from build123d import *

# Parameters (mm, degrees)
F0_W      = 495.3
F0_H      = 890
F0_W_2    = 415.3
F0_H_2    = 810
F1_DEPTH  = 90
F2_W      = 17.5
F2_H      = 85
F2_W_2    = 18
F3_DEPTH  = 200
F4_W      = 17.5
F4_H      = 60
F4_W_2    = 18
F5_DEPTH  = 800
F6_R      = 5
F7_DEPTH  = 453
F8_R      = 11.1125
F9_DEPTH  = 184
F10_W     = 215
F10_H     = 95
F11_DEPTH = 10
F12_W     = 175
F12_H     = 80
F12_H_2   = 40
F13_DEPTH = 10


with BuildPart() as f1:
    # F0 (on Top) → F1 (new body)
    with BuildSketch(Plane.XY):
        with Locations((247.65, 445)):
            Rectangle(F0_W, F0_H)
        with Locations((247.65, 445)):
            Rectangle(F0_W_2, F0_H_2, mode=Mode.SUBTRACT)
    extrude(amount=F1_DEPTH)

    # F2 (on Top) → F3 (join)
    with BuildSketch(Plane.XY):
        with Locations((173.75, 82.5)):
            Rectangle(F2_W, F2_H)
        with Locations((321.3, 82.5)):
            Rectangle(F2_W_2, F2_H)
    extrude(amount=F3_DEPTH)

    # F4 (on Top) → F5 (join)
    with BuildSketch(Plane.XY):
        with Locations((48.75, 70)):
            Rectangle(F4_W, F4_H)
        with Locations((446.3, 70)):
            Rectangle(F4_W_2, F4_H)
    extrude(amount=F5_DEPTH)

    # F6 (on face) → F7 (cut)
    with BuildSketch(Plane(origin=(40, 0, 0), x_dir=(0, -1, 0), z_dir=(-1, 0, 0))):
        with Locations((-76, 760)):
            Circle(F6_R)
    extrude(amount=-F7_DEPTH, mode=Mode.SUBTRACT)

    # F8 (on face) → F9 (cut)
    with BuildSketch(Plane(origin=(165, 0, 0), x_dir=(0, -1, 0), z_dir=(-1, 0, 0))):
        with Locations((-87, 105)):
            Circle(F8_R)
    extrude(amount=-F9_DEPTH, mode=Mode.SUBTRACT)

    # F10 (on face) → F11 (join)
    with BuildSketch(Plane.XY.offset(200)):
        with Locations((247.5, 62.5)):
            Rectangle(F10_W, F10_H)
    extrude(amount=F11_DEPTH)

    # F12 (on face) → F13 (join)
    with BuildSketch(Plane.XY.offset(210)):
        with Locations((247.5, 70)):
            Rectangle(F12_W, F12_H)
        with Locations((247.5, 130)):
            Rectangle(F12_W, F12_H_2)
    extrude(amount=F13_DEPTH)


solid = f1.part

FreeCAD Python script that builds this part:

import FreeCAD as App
import Part
import Sketcher
from FreeCAD import Vector

doc = App.newDocument("Part")
params = doc.addObject("Spreadsheet::Sheet", "Params")
for row, (alias, value) in enumerate([
    ("sketch1_height", "890 mm"),
    ("sketch1_height2", "810 mm"),
    ("sketch1_width", "495.3 mm"),
    ("sketch1_width2", "415.3 mm"),
    ("pad1_length", "90 mm"),
    ("sketch2_width", "18 mm"),
    ("sketch2_height", "85 mm"),
    ("sketch2_width2", "17.5 mm"),
    ("pad2_length", "200 mm"),
    ("sketch3_width", "18 mm"),
    ("sketch3_height", "60 mm"),
    ("sketch3_width2", "17.5 mm"),
    ("pad3_length", "800 mm"),
    ("sketch4_diameter", "10 mm"),
    ("pocket1_length", "453 mm"),
    ("pocket2_length", "184 mm"),
    ("sketch6_width", "215 mm"),
    ("sketch6_height", "95 mm"),
    ("pad4_length", "10 mm"),
    ("sketch7_width", "175 mm"),
    ("sketch7_height", "120 mm"),
    ("pad5_length", "10 mm"),
], start=1):
    params.set(f"A{row}", alias)
    params.set(f"B{row}", "=" + value)
    params.setAlias(f"B{row}", alias)

body = doc.addObject("PartDesign::Body", "Body")

sketch1 = doc.addObject("Sketcher::SketchObject", "Sketch")
body.addObject(sketch1)
sketch1.AttachmentSupport = (doc.XY_Plane, [""])
sketch1.MapMode = "FlatFace"
sketch1.addGeometry(Part.LineSegment(Vector(0, 890, 0), Vector(0, 0, 0)), False)
sketch1.addGeometry(Part.LineSegment(Vector(0, 0, 0), Vector(495, 0, 0)), False)
sketch1.addGeometry(Part.LineSegment(Vector(495, 0, 0), Vector(495, 890, 0)), False)
sketch1.addGeometry(Part.LineSegment(Vector(495, 890, 0), Vector(0, 890, 0)), False)
sketch1.addGeometry(Part.LineSegment(Vector(455, 40, 0), Vector(40, 40, 0)), False)
sketch1.addGeometry(Part.LineSegment(Vector(40, 40, 0), Vector(40, 850, 0)), False)
sketch1.addGeometry(Part.LineSegment(Vector(40, 850, 0), Vector(455, 850, 0)), False)
sketch1.addGeometry(Part.LineSegment(Vector(455, 850, 0), Vector(455, 40, 0)), False)
sketch1.addConstraint(Sketcher.Constraint("Coincident", 0, 2, 1, 1))
sketch1.addConstraint(Sketcher.Constraint("Coincident", 1, 2, 2, 1))
sketch1.addConstraint(Sketcher.Constraint("Coincident", 2, 2, 3, 1))
sketch1.addConstraint(Sketcher.Constraint("Coincident", 3, 2, 0, 1))
sketch1.addConstraint(Sketcher.Constraint("Coincident", 4, 2, 5, 1))
sketch1.addConstraint(Sketcher.Constraint("Coincident", 5, 2, 6, 1))
sketch1.addConstraint(Sketcher.Constraint("Coincident", 6, 2, 7, 1))
sketch1.addConstraint(Sketcher.Constraint("Coincident", 7, 2, 4, 1))
sketch1.addConstraint(Sketcher.Constraint("Vertical", 0))
sketch1.addConstraint(Sketcher.Constraint("Horizontal", 1))
sketch1.addConstraint(Sketcher.Constraint("Vertical", 2))
sketch1.addConstraint(Sketcher.Constraint("Horizontal", 3))
sketch1.addConstraint(Sketcher.Constraint("Horizontal", 4))
sketch1.addConstraint(Sketcher.Constraint("Vertical", 5))
sketch1.addConstraint(Sketcher.Constraint("Horizontal", 6))
sketch1.addConstraint(Sketcher.Constraint("Vertical", 7))
sketch1.addConstraint(Sketcher.Constraint("Coincident", 0, 2, -1, 1))
sketch1.addConstraint(Sketcher.Constraint("DistanceY", 0, 2, 0, 1, 890.0))
sketch1.addConstraint(Sketcher.Constraint("DistanceY", 5, 1, 5, 2, 810.0))
sketch1.addConstraint(Sketcher.Constraint("DistanceX", 1, 1, 1, 2, 495.3))
sketch1.addConstraint(Sketcher.Constraint("DistanceX", 4, 2, 4, 1, 415.3))
sketch1.addConstraint(Sketcher.Constraint("DistanceX", -1, 1, 4, 2, 40.0))
sketch1.addConstraint(Sketcher.Constraint("DistanceY", -1, 1, 4, 2, 40.0))
sketch1.setExpression("Constraints[17]", "Params.sketch1_height")
sketch1.setExpression("Constraints[18]", "Params.sketch1_height2")
sketch1.setExpression("Constraints[19]", "Params.sketch1_width")
sketch1.setExpression("Constraints[20]", "Params.sketch1_width2")
pad1 = doc.addObject("PartDesign::Pad", "Pad")
body.addObject(pad1)
pad1.Profile = sketch1
pad1.setExpression("Length", "Params.pad1_length")

sketch2 = doc.addObject("Sketcher::SketchObject", "Sketch001")
body.addObject(sketch2)
sketch2.AttachmentSupport = (doc.XY_Plane, [""])
sketch2.MapMode = "FlatFace"
sketch2.addGeometry(Part.LineSegment(Vector(165, 125, 0), Vector(165, 40, 0)), False)
sketch2.addGeometry(Part.LineSegment(Vector(165, 40, 0), Vector(182, 40, 0)), False)
sketch2.addGeometry(Part.LineSegment(Vector(182, 40, 0), Vector(182, 125, 0)), False)
sketch2.addGeometry(Part.LineSegment(Vector(182, 125, 0), Vector(165, 125, 0)), False)
sketch2.addGeometry(Part.LineSegment(Vector(312, 125, 0), Vector(312, 40, 0)), False)
sketch2.addGeometry(Part.LineSegment(Vector(312, 40, 0), Vector(330, 40, 0)), False)
sketch2.addGeometry(Part.LineSegment(Vector(330, 40, 0), Vector(330, 125, 0)), False)
sketch2.addGeometry(Part.LineSegment(Vector(330, 125, 0), Vector(312, 125, 0)), False)
sketch2.addConstraint(Sketcher.Constraint("Coincident", 0, 2, 1, 1))
sketch2.addConstraint(Sketcher.Constraint("Coincident", 1, 2, 2, 1))
sketch2.addConstraint(Sketcher.Constraint("Coincident", 2, 2, 3, 1))
sketch2.addConstraint(Sketcher.Constraint("Coincident", 3, 2, 0, 1))
sketch2.addConstraint(Sketcher.Constraint("Coincident", 4, 2, 5, 1))
sketch2.addConstraint(Sketcher.Constraint("Coincident", 5, 2, 6, 1))
sketch2.addConstraint(Sketcher.Constraint("Coincident", 6, 2, 7, 1))
sketch2.addConstraint(Sketcher.Constraint("Coincident", 7, 2, 4, 1))
sketch2.addConstraint(Sketcher.Constraint("Vertical", 0))
sketch2.addConstraint(Sketcher.Constraint("Horizontal", 1))
sketch2.addConstraint(Sketcher.Constraint("Vertical", 2))
sketch2.addConstraint(Sketcher.Constraint("Horizontal", 3))
sketch2.addConstraint(Sketcher.Constraint("Vertical", 4))
sketch2.addConstraint(Sketcher.Constraint("Horizontal", 5))
sketch2.addConstraint(Sketcher.Constraint("Vertical", 6))
sketch2.addConstraint(Sketcher.Constraint("Horizontal", 7))
sketch2.addConstraint(Sketcher.Constraint("Horizontal", 1, 2, 4, 2))
sketch2.addConstraint(Sketcher.Constraint("Horizontal", 3, 2, 6, 2))
sketch2.addConstraint(Sketcher.Constraint("DistanceX", 5, 1, 5, 2, 18.0))
sketch2.addConstraint(Sketcher.Constraint("DistanceY", 0, 2, 0, 1, 85.0))
sketch2.addConstraint(Sketcher.Constraint("DistanceX", 1, 1, 1, 2, 17.5))
sketch2.addConstraint(Sketcher.Constraint("DistanceX", -1, 1, 0, 2, 165.0))
sketch2.addConstraint(Sketcher.Constraint("DistanceY", -1, 1, 0, 2, 40.0))
sketch2.addConstraint(Sketcher.Constraint("DistanceX", -1, 1, 4, 2, 312.3))
sketch2.setExpression("Constraints[18]", "Params.sketch2_width")
sketch2.setExpression("Constraints[19]", "Params.sketch2_height")
sketch2.setExpression("Constraints[20]", "Params.sketch2_width2")
pad2 = doc.addObject("PartDesign::Pad", "Pad001")
body.addObject(pad2)
pad2.Profile = sketch2
pad2.setExpression("Length", "Params.pad2_length")

sketch3 = doc.addObject("Sketcher::SketchObject", "Sketch002")
body.addObject(sketch3)
sketch3.AttachmentSupport = (doc.XY_Plane, [""])
sketch3.MapMode = "FlatFace"
sketch3.addGeometry(Part.LineSegment(Vector(40, 100, 0), Vector(40, 40, 0)), False)
sketch3.addGeometry(Part.LineSegment(Vector(40, 40, 0), Vector(58, 40, 0)), False)
sketch3.addGeometry(Part.LineSegment(Vector(58, 40, 0), Vector(58, 100, 0)), False)
sketch3.addGeometry(Part.LineSegment(Vector(58, 100, 0), Vector(40, 100, 0)), False)
sketch3.addGeometry(Part.LineSegment(Vector(437, 100, 0), Vector(437, 40, 0)), False)
sketch3.addGeometry(Part.LineSegment(Vector(437, 40, 0), Vector(455, 40, 0)), False)
sketch3.addGeometry(Part.LineSegment(Vector(455, 40, 0), Vector(455, 100, 0)), False)
sketch3.addGeometry(Part.LineSegment(Vector(455, 100, 0), Vector(437, 100, 0)), False)
sketch3.addConstraint(Sketcher.Constraint("Coincident", 0, 2, 1, 1))
sketch3.addConstraint(Sketcher.Constraint("Coincident", 1, 2, 2, 1))
sketch3.addConstraint(Sketcher.Constraint("Coincident", 2, 2, 3, 1))
sketch3.addConstraint(Sketcher.Constraint("Coincident", 3, 2, 0, 1))
sketch3.addConstraint(Sketcher.Constraint("Coincident", 4, 2, 5, 1))
sketch3.addConstraint(Sketcher.Constraint("Coincident", 5, 2, 6, 1))
sketch3.addConstraint(Sketcher.Constraint("Coincident", 6, 2, 7, 1))
sketch3.addConstraint(Sketcher.Constraint("Coincident", 7, 2, 4, 1))
sketch3.addConstraint(Sketcher.Constraint("Vertical", 0))
sketch3.addConstraint(Sketcher.Constraint("Horizontal", 1))
sketch3.addConstraint(Sketcher.Constraint("Vertical", 2))
sketch3.addConstraint(Sketcher.Constraint("Horizontal", 3))
sketch3.addConstraint(Sketcher.Constraint("Vertical", 4))
sketch3.addConstraint(Sketcher.Constraint("Horizontal", 5))
sketch3.addConstraint(Sketcher.Constraint("Vertical", 6))
sketch3.addConstraint(Sketcher.Constraint("Horizontal", 7))
sketch3.addConstraint(Sketcher.Constraint("Horizontal", 1, 2, 4, 2))
sketch3.addConstraint(Sketcher.Constraint("Horizontal", 3, 2, 6, 2))
sketch3.addConstraint(Sketcher.Constraint("DistanceX", 5, 1, 5, 2, 18.0))
sketch3.addConstraint(Sketcher.Constraint("DistanceY", 0, 2, 0, 1, 60.0))
sketch3.addConstraint(Sketcher.Constraint("DistanceX", 1, 1, 1, 2, 17.5))
sketch3.addConstraint(Sketcher.Constraint("DistanceX", -1, 1, 0, 2, 40.0))
sketch3.addConstraint(Sketcher.Constraint("DistanceY", -1, 1, 0, 2, 40.0))
sketch3.addConstraint(Sketcher.Constraint("DistanceX", -1, 1, 4, 2, 437.3))
sketch3.setExpression("Constraints[18]", "Params.sketch3_width")
sketch3.setExpression("Constraints[19]", "Params.sketch3_height")
sketch3.setExpression("Constraints[20]", "Params.sketch3_width2")
pad3 = doc.addObject("PartDesign::Pad", "Pad002")
body.addObject(pad3)
pad3.Profile = sketch3
pad3.setExpression("Length", "Params.pad3_length")

sketch4 = doc.addObject("Sketcher::SketchObject", "Sketch003")
body.addObject(sketch4)
sketch4.AttachmentSupport = (doc.YZ_Plane, [""])
sketch4.MapMode = "FlatFace"
sketch4.AttachmentOffset = App.Placement(Vector(0, 0, 40), App.Rotation())
sketch4.addGeometry(Part.Circle(Vector(76, 760, 0), Vector(0, 0, 1), 5), False)
sketch4.addConstraint(Sketcher.Constraint("Diameter", 0, 10.0))
sketch4.addConstraint(Sketcher.Constraint("DistanceX", -1, 1, 0, 3, 76.0))
sketch4.addConstraint(Sketcher.Constraint("DistanceY", -1, 1, 0, 3, 760.0))
sketch4.setExpression("Constraints[0]", "Params.sketch4_diameter")
pocket1 = doc.addObject("PartDesign::Pocket", "Pocket")
body.addObject(pocket1)
pocket1.Profile = sketch4
pocket1.setExpression("Length", "Params.pocket1_length")
pocket1.Reversed = True

sketch5 = doc.addObject("Sketcher::SketchObject", "Sketch004")
body.addObject(sketch5)
sketch5.AttachmentSupport = (doc.YZ_Plane, [""])
sketch5.MapMode = "FlatFace"
sketch5.AttachmentOffset = App.Placement(Vector(0, 0, 165), App.Rotation())
sketch5.addGeometry(Part.Circle(Vector(87, 105, 0), Vector(0, 0, 1), 11), False)
sketch5.addConstraint(Sketcher.Constraint("Diameter", 0, 22.225))
sketch5.addConstraint(Sketcher.Constraint("DistanceX", -1, 1, 0, 3, 87.0))
sketch5.addConstraint(Sketcher.Constraint("DistanceY", -1, 1, 0, 3, 105.0))
pocket2 = doc.addObject("PartDesign::Pocket", "Pocket001")
body.addObject(pocket2)
pocket2.Profile = sketch5
pocket2.setExpression("Length", "Params.pocket2_length")
pocket2.Reversed = True

sketch6 = doc.addObject("Sketcher::SketchObject", "Sketch005")
body.addObject(sketch6)
sketch6.AttachmentSupport = (doc.XY_Plane, [""])
sketch6.MapMode = "FlatFace"
sketch6.AttachmentOffset = App.Placement(Vector(0, 0, 200), App.Rotation())
sketch6.addGeometry(Part.LineSegment(Vector(140, 110, 0), Vector(140, 15, 0)), False)
sketch6.addGeometry(Part.LineSegment(Vector(140, 15, 0), Vector(355, 15, 0)), False)
sketch6.addGeometry(Part.LineSegment(Vector(355, 15, 0), Vector(355, 110, 0)), False)
sketch6.addGeometry(Part.LineSegment(Vector(355, 110, 0), Vector(140, 110, 0)), False)
sketch6.addConstraint(Sketcher.Constraint("Coincident", 0, 2, 1, 1))
sketch6.addConstraint(Sketcher.Constraint("Coincident", 1, 2, 2, 1))
sketch6.addConstraint(Sketcher.Constraint("Coincident", 2, 2, 3, 1))
sketch6.addConstraint(Sketcher.Constraint("Coincident", 3, 2, 0, 1))
sketch6.addConstraint(Sketcher.Constraint("Vertical", 0))
sketch6.addConstraint(Sketcher.Constraint("Horizontal", 1))
sketch6.addConstraint(Sketcher.Constraint("Vertical", 2))
sketch6.addConstraint(Sketcher.Constraint("Horizontal", 3))
sketch6.addConstraint(Sketcher.Constraint("DistanceX", 1, 1, 1, 2, 215.0))
sketch6.addConstraint(Sketcher.Constraint("DistanceY", 0, 2, 0, 1, 95.0))
sketch6.addConstraint(Sketcher.Constraint("DistanceX", -1, 1, 0, 2, 140.0))
sketch6.addConstraint(Sketcher.Constraint("DistanceY", -1, 1, 0, 2, 15.0))
sketch6.setExpression("Constraints[8]", "Params.sketch6_width")
sketch6.setExpression("Constraints[9]", "Params.sketch6_height")
pad4 = doc.addObject("PartDesign::Pad", "Pad003")
body.addObject(pad4)
pad4.Profile = sketch6
pad4.setExpression("Length", "Params.pad4_length")

sketch7 = doc.addObject("Sketcher::SketchObject", "Sketch006")
body.addObject(sketch7)
sketch7.AttachmentSupport = (doc.XY_Plane, [""])
sketch7.MapMode = "FlatFace"
sketch7.AttachmentOffset = App.Placement(Vector(0, 0, 210), App.Rotation())
sketch7.addGeometry(Part.LineSegment(Vector(160, 30, 0), Vector(335, 30, 0)), False)
sketch7.addGeometry(Part.LineSegment(Vector(335, 30, 0), Vector(335, 150, 0)), False)
sketch7.addGeometry(Part.LineSegment(Vector(335, 150, 0), Vector(160, 150, 0)), False)
sketch7.addGeometry(Part.LineSegment(Vector(160, 150, 0), Vector(160, 30, 0)), False)
sketch7.addConstraint(Sketcher.Constraint("Coincident", 0, 2, 1, 1))
sketch7.addConstraint(Sketcher.Constraint("Coincident", 1, 2, 2, 1))
sketch7.addConstraint(Sketcher.Constraint("Coincident", 2, 2, 3, 1))
sketch7.addConstraint(Sketcher.Constraint("Coincident", 3, 2, 0, 1))
sketch7.addConstraint(Sketcher.Constraint("Horizontal", 0))
sketch7.addConstraint(Sketcher.Constraint("Vertical", 1))
sketch7.addConstraint(Sketcher.Constraint("Horizontal", 2))
sketch7.addConstraint(Sketcher.Constraint("Vertical", 3))
sketch7.addConstraint(Sketcher.Constraint("DistanceX", 0, 1, 0, 2, 175.0))
sketch7.addConstraint(Sketcher.Constraint("DistanceY", 1, 1, 1, 2, 120.0))
sketch7.addConstraint(Sketcher.Constraint("DistanceX", -1, 1, 0, 2, 335.0))
sketch7.addConstraint(Sketcher.Constraint("DistanceY", -1, 1, 0, 2, 30.0))
sketch7.setExpression("Constraints[8]", "Params.sketch7_width")
sketch7.setExpression("Constraints[9]", "Params.sketch7_height")
pad5 = doc.addObject("PartDesign::Pad", "Pad004")
body.addObject(pad5)
pad5.Profile = sketch7
pad5.setExpression("Length", "Params.pad5_length")

doc.recompute()
